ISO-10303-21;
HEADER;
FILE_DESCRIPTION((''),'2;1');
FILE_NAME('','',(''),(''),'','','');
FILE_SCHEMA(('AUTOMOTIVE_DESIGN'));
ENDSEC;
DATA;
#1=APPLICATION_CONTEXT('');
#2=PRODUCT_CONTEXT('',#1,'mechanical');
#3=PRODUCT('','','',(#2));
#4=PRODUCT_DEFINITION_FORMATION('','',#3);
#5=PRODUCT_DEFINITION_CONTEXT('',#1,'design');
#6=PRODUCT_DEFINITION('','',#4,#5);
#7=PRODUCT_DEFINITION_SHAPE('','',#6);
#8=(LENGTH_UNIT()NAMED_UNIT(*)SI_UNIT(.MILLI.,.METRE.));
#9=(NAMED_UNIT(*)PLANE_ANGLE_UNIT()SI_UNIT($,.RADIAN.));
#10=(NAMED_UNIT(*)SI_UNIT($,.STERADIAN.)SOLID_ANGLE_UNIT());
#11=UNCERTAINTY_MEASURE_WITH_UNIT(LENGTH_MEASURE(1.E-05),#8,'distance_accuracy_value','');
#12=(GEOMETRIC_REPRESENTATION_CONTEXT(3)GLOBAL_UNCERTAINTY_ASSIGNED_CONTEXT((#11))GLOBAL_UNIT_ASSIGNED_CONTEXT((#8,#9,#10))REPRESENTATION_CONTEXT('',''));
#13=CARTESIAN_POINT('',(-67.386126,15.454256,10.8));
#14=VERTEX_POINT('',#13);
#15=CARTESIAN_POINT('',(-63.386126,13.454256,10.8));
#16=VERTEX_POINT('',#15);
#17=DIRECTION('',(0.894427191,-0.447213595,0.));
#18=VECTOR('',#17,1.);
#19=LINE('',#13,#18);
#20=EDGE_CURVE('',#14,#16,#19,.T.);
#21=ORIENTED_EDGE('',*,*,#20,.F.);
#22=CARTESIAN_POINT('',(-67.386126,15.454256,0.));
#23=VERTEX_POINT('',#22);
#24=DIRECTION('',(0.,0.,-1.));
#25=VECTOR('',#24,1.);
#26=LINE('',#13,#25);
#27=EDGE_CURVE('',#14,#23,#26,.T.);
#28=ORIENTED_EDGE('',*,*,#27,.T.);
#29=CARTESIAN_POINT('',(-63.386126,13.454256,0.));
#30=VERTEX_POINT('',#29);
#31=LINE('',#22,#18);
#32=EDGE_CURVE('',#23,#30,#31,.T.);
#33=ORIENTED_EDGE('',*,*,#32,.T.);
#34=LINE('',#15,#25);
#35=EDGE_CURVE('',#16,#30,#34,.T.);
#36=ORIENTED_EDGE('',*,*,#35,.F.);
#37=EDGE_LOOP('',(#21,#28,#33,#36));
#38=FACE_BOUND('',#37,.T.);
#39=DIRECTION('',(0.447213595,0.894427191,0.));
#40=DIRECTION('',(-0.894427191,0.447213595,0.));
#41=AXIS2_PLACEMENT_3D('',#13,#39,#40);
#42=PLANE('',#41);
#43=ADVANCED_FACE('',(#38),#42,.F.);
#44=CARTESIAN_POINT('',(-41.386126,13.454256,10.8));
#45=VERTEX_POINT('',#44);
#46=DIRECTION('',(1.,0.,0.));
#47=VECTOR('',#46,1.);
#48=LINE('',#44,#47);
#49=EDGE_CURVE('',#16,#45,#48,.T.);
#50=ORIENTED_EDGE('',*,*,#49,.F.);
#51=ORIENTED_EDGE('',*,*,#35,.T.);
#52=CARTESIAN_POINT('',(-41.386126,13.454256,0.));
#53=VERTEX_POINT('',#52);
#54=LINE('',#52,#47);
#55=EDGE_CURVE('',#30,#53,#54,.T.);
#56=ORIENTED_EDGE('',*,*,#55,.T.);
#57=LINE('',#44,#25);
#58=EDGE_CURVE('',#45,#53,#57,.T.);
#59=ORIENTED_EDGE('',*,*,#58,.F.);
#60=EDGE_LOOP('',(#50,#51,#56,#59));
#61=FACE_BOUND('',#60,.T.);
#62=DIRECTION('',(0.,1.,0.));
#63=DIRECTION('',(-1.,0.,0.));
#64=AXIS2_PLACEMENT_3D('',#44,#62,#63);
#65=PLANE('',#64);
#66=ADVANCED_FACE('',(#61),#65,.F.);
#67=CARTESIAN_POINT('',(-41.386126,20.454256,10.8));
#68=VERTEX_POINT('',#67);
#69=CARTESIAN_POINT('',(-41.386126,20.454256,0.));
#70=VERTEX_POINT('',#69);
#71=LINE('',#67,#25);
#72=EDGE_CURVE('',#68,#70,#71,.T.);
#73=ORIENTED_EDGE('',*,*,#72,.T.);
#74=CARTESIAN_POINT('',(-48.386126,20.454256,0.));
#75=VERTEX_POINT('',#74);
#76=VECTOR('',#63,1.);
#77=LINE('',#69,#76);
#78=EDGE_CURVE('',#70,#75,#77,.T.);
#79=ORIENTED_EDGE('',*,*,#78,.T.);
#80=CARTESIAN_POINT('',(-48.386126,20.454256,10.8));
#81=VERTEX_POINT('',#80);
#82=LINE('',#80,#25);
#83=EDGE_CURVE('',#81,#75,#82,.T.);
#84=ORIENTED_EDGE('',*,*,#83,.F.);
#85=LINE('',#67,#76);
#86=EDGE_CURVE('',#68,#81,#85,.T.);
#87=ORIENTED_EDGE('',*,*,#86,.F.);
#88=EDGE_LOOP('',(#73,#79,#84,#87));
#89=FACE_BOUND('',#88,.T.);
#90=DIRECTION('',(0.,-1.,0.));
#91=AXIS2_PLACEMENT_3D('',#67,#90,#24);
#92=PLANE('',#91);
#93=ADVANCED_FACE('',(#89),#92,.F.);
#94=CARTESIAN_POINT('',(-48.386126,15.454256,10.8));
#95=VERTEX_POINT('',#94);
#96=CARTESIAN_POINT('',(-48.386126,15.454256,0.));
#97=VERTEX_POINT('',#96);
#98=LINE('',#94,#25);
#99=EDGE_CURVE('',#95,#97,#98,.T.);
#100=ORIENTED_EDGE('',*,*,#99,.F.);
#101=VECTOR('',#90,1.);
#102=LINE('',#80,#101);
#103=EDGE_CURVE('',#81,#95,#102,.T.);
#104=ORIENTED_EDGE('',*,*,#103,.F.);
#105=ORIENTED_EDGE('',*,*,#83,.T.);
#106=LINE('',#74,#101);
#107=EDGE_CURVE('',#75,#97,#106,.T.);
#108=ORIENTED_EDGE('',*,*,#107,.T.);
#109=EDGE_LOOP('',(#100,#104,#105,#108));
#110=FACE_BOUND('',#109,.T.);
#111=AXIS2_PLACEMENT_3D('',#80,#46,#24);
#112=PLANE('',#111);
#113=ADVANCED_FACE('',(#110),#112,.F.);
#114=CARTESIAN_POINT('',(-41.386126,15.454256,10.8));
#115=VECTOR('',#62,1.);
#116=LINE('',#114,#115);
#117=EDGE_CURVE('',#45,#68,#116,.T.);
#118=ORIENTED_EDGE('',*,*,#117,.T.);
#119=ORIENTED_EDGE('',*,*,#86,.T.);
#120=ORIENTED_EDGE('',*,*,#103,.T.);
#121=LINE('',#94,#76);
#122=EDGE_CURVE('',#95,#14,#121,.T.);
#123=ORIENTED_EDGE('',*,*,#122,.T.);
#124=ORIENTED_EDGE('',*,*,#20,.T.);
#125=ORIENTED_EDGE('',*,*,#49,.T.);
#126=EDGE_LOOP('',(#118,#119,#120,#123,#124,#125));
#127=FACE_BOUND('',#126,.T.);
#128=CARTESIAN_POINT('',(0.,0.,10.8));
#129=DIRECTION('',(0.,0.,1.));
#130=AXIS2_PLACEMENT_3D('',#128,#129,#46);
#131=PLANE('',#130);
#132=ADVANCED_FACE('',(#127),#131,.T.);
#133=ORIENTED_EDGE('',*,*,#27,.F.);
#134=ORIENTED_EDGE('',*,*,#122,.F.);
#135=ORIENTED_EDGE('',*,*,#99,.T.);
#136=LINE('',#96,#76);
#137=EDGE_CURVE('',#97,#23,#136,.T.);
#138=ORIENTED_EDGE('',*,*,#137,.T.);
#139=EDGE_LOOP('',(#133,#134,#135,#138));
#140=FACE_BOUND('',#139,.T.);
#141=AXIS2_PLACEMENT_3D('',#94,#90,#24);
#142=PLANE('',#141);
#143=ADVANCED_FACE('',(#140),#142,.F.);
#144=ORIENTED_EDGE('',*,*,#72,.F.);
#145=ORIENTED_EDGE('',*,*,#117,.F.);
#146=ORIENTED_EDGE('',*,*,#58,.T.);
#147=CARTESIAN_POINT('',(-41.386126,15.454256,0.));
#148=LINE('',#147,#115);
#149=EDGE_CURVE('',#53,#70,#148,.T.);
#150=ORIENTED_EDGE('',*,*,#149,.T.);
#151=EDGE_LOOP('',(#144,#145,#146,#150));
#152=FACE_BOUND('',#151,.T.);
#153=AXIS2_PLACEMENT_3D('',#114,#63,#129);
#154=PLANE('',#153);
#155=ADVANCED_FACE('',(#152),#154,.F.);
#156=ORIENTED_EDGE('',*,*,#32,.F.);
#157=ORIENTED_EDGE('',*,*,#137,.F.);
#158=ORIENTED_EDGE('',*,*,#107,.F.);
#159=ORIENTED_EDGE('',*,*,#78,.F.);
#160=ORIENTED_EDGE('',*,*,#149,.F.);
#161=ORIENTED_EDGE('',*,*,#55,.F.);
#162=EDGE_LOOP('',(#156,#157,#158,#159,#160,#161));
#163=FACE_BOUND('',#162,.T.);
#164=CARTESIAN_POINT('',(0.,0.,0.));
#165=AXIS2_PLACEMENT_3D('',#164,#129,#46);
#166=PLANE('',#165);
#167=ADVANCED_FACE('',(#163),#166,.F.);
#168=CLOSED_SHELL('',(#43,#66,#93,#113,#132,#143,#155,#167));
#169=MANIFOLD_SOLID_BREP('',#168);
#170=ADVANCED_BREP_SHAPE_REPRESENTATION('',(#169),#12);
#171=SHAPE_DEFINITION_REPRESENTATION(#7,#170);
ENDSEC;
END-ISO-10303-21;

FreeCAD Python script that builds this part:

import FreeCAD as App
import Part
import Sketcher
from FreeCAD import Vector
Q = App.Units.Quantity


def add_polygon(sketch, points):
    """Adds a closed chain of lines whose ends are joined by coincident constraints."""
    first, n = sketch.GeometryCount, len(points)
    for a, b in zip(points, points[1:] + points[:1]):
        sketch.addGeometry(Part.LineSegment(App.Vector(*a, 0), App.Vector(*b, 0)), False)
    for i in range(n):
        sketch.addConstraint(Sketcher.Constraint("Coincident", first + i, 2, first + (i + 1) % n, 1))

doc = App.newDocument("Part")
body = doc.addObject("PartDesign::Body", "Body")

# Sketch on XY plane
sketch1 = doc.addObject("Sketcher::SketchObject", "Sketch")
body.addObject(sketch1)
sketch1.AttachmentSupport = (doc.XY_Plane, [""])
sketch1.MapMode = "FlatFace"
add_polygon(sketch1, [(-41.386126, 13.454256), (-41.386126, 20.454256), (-48.386126, 20.454256), (-48.386126, 15.454256), (-67.386126, 15.454256), (-63.386126, 13.454256)])  # lines 0-5
sketch1.addConstraint([
    Sketcher.Constraint("Vertical", 0),
    Sketcher.Constraint("Horizontal", 1),
    Sketcher.Constraint("Vertical", 2),
    Sketcher.Constraint("Horizontal", 3),
    Sketcher.Constraint("Horizontal", 5),
    Sketcher.Constraint("Equal", 1, 0),
    Sketcher.Constraint("DistanceX", 1, 2, 1, 1, Q("7 mm")),
    Sketcher.Constraint("DistanceX", 3, 2, 3, 1, Q("19 mm")),
    Sketcher.Constraint("DistanceX", 5, 1, 5, 2, Q("22 mm")),
    Sketcher.Constraint("DistanceY", 2, 2, 2, 1, Q("5 mm")),
    Sketcher.Constraint("DistanceX", 0, 2, -1, 1, Q("41.386126 mm")),
    Sketcher.Constraint("DistanceY", -1, 1, 0, 2, Q("20.454256 mm")),
])
pad1 = doc.addObject("PartDesign::Pad", "Pad")
body.addObject(pad1)
pad1.Profile = sketch1
pad1.Length = 10.8

doc.recompute()
